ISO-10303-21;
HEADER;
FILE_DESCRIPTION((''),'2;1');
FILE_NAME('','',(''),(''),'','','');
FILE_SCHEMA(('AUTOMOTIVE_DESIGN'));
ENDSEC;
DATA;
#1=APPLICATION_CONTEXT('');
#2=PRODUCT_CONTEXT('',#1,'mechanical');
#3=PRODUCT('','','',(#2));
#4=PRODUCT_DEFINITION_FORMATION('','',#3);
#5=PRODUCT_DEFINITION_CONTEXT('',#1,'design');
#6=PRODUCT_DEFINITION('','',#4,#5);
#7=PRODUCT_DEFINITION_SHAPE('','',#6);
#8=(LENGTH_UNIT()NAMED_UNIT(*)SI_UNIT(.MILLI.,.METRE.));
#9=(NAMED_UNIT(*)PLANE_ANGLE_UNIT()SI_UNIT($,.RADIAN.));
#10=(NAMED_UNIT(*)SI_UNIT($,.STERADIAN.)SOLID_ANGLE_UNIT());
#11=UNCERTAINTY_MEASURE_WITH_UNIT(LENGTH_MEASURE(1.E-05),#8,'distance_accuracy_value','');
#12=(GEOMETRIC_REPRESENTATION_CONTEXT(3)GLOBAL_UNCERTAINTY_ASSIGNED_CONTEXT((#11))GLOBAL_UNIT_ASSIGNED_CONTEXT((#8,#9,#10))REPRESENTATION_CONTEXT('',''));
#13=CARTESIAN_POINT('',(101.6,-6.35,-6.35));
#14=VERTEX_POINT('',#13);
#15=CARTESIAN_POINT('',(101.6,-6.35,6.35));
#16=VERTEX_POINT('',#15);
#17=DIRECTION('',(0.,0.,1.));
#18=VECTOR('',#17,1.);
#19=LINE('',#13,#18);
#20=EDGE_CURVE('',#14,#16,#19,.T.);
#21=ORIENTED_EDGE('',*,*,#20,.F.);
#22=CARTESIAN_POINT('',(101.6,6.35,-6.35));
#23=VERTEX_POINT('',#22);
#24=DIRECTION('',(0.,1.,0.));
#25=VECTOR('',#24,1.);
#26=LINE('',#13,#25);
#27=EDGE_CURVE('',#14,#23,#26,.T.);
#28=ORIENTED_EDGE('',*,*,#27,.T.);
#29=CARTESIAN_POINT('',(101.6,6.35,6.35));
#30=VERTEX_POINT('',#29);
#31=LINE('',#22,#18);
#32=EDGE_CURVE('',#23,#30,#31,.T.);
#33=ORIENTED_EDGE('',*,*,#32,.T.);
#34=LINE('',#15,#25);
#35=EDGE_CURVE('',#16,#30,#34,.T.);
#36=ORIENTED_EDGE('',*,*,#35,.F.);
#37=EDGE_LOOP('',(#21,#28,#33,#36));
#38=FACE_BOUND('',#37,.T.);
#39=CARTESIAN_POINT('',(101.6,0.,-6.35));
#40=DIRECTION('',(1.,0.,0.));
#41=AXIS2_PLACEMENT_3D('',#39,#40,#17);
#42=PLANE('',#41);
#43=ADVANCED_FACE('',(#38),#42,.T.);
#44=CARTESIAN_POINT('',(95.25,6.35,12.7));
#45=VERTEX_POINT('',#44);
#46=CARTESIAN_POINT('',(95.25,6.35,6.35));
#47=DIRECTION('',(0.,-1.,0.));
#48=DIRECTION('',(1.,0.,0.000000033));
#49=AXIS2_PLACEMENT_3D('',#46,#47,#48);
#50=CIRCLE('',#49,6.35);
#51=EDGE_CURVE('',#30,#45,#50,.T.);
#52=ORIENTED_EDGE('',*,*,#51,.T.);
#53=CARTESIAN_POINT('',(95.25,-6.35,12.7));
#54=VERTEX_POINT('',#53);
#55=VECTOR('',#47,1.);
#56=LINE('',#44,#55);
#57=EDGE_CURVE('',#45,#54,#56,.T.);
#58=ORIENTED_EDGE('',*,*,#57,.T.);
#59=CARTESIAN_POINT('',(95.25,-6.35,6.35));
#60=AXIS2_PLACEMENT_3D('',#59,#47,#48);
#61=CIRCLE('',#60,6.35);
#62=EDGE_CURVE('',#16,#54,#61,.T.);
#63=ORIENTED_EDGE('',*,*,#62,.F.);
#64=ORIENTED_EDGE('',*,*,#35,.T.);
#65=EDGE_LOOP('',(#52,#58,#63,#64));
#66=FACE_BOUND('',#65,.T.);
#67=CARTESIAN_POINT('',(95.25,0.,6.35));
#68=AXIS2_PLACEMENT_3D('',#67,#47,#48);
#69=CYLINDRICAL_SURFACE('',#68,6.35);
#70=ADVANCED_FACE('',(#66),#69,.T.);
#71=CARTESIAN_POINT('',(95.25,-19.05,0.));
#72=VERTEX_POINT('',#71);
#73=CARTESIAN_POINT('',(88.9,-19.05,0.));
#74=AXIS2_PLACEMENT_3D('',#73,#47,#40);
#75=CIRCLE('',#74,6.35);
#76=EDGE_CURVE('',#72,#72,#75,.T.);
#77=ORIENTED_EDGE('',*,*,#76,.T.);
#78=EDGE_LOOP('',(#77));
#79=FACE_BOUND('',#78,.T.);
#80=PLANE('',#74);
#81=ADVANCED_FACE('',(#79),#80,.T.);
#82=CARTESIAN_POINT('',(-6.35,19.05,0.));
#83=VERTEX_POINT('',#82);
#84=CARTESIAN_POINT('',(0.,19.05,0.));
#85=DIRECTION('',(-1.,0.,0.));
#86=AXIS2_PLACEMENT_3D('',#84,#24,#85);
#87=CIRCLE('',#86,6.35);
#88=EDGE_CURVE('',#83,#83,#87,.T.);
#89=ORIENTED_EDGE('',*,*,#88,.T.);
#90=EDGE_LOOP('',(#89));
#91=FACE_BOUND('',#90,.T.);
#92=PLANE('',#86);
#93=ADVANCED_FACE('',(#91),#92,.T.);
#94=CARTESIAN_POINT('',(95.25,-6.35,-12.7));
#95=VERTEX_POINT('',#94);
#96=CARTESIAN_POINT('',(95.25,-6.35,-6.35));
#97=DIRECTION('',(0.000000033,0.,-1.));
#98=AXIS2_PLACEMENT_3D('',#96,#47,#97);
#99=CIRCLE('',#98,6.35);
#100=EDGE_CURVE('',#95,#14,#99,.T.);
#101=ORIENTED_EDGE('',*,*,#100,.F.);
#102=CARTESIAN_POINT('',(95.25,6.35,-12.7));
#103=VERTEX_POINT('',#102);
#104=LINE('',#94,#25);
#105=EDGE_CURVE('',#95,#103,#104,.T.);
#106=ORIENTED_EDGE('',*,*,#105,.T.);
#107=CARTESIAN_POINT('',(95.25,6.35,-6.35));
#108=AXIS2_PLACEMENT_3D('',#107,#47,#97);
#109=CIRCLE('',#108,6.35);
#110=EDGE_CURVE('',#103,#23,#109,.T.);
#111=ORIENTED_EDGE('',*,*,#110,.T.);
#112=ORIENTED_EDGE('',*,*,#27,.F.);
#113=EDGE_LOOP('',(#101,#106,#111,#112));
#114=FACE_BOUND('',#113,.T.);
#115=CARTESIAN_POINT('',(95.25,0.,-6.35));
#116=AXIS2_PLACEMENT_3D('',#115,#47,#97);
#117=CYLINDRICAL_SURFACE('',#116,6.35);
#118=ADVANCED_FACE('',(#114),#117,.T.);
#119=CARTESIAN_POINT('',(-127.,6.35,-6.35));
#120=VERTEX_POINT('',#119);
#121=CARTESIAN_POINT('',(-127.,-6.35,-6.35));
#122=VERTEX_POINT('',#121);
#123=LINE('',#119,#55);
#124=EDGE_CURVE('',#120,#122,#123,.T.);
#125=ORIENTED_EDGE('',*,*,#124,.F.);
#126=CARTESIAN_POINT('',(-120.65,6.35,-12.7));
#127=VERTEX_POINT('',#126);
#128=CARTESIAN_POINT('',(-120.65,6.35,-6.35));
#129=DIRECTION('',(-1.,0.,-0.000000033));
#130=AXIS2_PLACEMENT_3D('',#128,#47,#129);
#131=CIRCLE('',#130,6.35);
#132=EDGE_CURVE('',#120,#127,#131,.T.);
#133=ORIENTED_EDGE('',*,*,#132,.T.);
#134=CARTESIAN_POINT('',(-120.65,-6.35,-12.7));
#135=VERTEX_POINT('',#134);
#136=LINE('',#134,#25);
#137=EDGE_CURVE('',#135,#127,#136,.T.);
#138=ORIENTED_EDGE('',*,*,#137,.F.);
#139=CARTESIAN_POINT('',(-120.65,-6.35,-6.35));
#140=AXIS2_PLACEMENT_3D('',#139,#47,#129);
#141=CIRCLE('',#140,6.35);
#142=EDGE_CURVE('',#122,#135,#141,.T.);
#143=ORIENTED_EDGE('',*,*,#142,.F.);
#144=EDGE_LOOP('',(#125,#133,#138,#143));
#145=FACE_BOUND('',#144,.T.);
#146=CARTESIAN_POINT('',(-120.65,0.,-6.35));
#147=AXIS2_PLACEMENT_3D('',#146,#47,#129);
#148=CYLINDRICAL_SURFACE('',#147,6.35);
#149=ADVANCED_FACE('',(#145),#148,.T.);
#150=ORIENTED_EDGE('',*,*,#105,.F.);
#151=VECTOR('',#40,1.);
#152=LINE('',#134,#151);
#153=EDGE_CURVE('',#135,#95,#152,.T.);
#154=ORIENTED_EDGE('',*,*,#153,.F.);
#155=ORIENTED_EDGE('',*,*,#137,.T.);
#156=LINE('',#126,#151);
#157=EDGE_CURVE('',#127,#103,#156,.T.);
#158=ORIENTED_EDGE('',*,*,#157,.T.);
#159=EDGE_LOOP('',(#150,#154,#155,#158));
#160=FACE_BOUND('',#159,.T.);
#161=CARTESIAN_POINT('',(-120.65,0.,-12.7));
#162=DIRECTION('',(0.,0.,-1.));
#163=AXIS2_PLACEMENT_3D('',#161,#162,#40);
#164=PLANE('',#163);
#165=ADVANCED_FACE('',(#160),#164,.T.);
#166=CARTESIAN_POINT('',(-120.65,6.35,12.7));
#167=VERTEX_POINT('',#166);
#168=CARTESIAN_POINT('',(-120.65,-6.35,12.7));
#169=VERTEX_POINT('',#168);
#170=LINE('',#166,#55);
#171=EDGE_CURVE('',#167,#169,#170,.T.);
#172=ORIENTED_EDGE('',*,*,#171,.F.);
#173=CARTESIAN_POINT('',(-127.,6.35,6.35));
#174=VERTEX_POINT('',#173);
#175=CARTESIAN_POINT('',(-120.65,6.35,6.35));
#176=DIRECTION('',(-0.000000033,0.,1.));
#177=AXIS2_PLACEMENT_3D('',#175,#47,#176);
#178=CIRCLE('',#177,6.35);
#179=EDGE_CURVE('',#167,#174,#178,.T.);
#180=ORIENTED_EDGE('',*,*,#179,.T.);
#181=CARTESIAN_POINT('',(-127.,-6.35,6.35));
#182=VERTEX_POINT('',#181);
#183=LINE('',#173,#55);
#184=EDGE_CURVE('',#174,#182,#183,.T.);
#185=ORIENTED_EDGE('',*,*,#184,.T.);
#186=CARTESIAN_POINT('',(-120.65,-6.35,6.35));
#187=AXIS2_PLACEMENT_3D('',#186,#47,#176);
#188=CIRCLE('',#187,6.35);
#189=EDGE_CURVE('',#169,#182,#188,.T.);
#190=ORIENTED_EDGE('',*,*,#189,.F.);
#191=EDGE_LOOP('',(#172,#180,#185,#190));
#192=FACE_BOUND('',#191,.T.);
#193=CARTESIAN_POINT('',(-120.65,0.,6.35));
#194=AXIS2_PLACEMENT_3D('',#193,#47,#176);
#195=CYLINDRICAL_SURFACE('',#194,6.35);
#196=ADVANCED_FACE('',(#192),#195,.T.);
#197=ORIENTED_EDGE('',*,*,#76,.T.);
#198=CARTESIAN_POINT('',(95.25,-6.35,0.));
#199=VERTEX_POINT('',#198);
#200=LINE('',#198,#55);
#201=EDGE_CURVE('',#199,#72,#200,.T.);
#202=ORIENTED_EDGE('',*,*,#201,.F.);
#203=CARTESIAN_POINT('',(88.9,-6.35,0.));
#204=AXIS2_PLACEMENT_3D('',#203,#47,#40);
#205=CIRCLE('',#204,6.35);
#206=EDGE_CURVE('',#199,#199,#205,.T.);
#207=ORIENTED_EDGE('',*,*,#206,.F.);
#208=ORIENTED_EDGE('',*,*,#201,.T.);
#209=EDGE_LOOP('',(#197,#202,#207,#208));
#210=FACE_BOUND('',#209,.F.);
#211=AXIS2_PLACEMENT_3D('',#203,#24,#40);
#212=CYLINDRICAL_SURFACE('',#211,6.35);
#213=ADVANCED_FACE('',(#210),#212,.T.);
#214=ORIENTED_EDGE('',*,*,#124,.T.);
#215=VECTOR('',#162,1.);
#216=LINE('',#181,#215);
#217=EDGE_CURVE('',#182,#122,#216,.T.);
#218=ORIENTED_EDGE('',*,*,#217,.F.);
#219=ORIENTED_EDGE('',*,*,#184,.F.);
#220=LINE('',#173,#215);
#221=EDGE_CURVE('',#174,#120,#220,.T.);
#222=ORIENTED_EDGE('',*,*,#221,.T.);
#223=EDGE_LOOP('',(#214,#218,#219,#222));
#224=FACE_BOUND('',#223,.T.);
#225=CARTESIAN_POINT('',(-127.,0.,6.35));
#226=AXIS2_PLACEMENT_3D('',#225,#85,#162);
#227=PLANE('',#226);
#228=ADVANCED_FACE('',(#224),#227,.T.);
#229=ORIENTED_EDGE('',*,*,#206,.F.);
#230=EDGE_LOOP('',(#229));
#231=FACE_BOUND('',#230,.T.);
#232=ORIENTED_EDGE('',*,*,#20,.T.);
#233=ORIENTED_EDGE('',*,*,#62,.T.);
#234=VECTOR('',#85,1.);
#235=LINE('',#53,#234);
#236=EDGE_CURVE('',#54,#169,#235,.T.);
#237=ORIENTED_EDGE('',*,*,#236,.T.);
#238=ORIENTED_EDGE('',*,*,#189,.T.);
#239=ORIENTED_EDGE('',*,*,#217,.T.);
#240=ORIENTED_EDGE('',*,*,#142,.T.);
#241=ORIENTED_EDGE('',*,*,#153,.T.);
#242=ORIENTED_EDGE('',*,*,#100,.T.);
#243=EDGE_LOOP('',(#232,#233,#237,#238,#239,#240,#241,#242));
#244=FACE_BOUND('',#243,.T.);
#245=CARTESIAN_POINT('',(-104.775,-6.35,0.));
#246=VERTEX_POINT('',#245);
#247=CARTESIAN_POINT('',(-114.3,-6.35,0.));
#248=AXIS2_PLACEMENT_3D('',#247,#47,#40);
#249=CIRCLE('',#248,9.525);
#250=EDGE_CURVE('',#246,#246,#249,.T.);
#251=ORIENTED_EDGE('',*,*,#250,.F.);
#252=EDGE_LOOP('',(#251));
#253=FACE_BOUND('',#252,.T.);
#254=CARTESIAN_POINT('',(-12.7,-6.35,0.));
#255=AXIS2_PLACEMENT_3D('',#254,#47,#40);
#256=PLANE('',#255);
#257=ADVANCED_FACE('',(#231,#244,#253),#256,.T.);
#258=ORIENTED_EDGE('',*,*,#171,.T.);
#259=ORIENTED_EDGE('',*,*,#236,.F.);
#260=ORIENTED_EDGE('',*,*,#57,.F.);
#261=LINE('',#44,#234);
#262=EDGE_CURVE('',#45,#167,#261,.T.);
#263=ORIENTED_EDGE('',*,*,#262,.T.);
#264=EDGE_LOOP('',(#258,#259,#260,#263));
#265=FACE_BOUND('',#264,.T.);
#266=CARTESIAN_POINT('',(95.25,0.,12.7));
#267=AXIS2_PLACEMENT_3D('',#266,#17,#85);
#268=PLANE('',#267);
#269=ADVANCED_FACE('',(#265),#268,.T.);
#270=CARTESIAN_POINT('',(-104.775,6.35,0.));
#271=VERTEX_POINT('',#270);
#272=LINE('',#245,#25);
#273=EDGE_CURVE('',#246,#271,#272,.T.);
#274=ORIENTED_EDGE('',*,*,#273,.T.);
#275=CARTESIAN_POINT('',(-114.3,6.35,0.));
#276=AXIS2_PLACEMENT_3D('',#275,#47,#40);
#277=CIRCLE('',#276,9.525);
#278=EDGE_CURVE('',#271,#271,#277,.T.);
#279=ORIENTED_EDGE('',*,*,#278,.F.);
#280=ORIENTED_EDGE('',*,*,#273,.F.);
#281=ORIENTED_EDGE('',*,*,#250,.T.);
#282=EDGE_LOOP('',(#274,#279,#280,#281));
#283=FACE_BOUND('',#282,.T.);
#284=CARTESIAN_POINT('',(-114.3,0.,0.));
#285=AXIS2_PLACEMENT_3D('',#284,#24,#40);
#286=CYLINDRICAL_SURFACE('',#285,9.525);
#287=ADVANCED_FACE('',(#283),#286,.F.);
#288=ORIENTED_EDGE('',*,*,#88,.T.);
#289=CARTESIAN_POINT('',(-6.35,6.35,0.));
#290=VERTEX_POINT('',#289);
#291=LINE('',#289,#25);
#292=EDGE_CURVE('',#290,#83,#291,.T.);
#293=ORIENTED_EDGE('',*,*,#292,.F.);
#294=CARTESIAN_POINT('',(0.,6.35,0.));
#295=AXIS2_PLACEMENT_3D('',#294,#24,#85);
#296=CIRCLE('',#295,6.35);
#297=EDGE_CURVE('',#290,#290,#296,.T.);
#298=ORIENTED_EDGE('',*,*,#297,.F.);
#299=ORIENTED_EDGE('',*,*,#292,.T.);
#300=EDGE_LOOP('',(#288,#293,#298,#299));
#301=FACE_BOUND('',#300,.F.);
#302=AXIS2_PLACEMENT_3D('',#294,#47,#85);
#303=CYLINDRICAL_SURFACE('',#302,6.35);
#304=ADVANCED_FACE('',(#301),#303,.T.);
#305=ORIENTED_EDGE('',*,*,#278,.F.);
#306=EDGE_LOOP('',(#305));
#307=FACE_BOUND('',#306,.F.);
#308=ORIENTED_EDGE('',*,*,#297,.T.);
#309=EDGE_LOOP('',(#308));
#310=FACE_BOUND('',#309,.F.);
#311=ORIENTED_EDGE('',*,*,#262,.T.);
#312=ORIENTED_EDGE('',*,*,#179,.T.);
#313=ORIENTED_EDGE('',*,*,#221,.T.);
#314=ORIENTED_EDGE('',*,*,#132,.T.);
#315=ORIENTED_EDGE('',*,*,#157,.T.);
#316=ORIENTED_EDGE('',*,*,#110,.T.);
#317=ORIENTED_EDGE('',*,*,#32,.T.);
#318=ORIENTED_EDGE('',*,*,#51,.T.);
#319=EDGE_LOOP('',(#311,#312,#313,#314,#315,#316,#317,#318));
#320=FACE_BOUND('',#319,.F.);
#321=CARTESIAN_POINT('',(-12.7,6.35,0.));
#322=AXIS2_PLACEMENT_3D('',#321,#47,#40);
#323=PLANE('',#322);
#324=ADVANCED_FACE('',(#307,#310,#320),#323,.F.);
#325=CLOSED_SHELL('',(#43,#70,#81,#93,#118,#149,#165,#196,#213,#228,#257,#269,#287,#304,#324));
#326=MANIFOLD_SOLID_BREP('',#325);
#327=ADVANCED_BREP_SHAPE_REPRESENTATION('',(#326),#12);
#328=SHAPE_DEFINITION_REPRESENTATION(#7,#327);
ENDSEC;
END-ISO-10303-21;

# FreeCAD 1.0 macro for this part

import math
import FreeCAD as App
import Part
import Sketcher
Q = App.Units.Quantity

doc = App.newDocument("Part")
params = doc.addObject("Spreadsheet::Sheet", "Params")
for row, (alias, value) in enumerate([
    ("sketch1_diameter", "0.75 in"),
    ("sketch1_radius", "0.25 in"),
    ("sketch1_width", "8.5 in"),
    ("sketch1_height", "0.5 in"),
    ("pad1_length", "0.5 in"),
    ("sketch2_diameter", "0.5 in"),
    ("pad2_length", "0.5 in"),
    ("sketch3_diameter", "0.5 in"),
    ("pad3_length", "0.5 in"),
], start=1):
    params.set(f"A{row}", alias)
    params.set(f"B{row}", "=" + value)
    params.setAlias(f"B{row}", alias)

body = doc.addObject("PartDesign::Body", "Body")

# Sketch on XZ plane
sketch1 = body.newObject("Sketcher::SketchObject", "Sketch")
sketch1.AttachmentSupport = (doc.getObject("XZ_Plane"), [""])
sketch1.MapMode = "FlatFace"
sketch1.addGeometry([
    Part.ArcOfCircle(Part.Circle(App.Vector(95, 6, 0), App.Vector(0, 0, 1), 6), math.radians(0), math.radians(90)),  # 0
    Part.LineSegment(App.Vector(95, 13, 0), App.Vector(-121, 13, 0)),  # 1
    Part.ArcOfCircle(Part.Circle(App.Vector(-121, 6, 0), App.Vector(0, 0, 1), 6), math.radians(90), math.radians(180)),  # 2
    Part.LineSegment(App.Vector(-127, 6, 0), App.Vector(-127, -6, 0)),  # 3
    Part.ArcOfCircle(Part.Circle(App.Vector(-121, -6, 0), App.Vector(0, 0, 1), 6), math.radians(-180), math.radians(-90)),  # 4
    Part.LineSegment(App.Vector(-121, -13, 0), App.Vector(95, -13, 0)),  # 5
    Part.ArcOfCircle(Part.Circle(App.Vector(95, -6, 0), App.Vector(0, 0, 1), 6), math.radians(-90), math.radians(0)),  # 6
    Part.LineSegment(App.Vector(102, -6, 0), App.Vector(102, 6, 0)),  # 7
    Part.Circle(App.Vector(-114, 0, 0), App.Vector(0, 0, 1), 10),  # 8
], False)
sketch1.addConstraint([
    Sketcher.Constraint("Tangent", 0, 2, 1, 1),
    Sketcher.Constraint("Tangent", 1, 2, 2, 1),
    Sketcher.Constraint("Tangent", 2, 2, 3, 1),
    Sketcher.Constraint("Tangent", 3, 2, 4, 1),
    Sketcher.Constraint("Tangent", 4, 2, 5, 1),
    Sketcher.Constraint("Tangent", 5, 2, 6, 1),
    Sketcher.Constraint("Tangent", 6, 2, 7, 1),
    Sketcher.Constraint("Tangent", 7, 2, 0, 1),
    Sketcher.Constraint("Horizontal", 1),
    Sketcher.Constraint("Vertical", 3),
    Sketcher.Constraint("Horizontal", 5),
    Sketcher.Constraint("Vertical", 7),
    Sketcher.Constraint("Equal", 0, 2),
    Sketcher.Constraint("Equal", 2, 4),
    Sketcher.Constraint("Equal", 4, 6),
    Sketcher.Constraint("PointOnObject", 8, 3, -1),
    Sketcher.Constraint("Diameter", 8, Q("0.75 in")),
    Sketcher.Constraint("Radius", 0, Q("0.25 in")),
    Sketcher.Constraint("DistanceX", 1, 2, 1, 1, Q("8.5 in")),
    Sketcher.Constraint("DistanceY", 3, 2, 3, 1, Q("0.5 in")),
    Sketcher.Constraint("DistanceX", 2, 2, -1, 1, Q("5 in")),
    Sketcher.Constraint("DistanceX", 8, 3, -1, 1, Q("4.5 in")),
    Sketcher.Constraint("DistanceY", -1, 1, 0, 2, Q("0.5 in")),
])
sketch1.setExpression("Constraints[16]", "Params.sketch1_diameter")
sketch1.setExpression("Constraints[17]", "Params.sketch1_radius")
sketch1.setExpression("Constraints[18]", "Params.sketch1_width")
sketch1.setExpression("Constraints[19]", "Params.sketch1_height")
pad1 = body.newObject("PartDesign::Pad", "Pad")
pad1.Profile = sketch1
pad1.setExpression("Length", "Params.pad1_length")
pad1.Midplane = True

# Sketch on XZ plane
sketch2 = body.newObject("Sketcher::SketchObject", "Sketch001")
sketch2.AttachmentSupport = (doc.getObject("XZ_Plane"), [""])
sketch2.MapMode = "FlatFace"
sketch2.AttachmentOffset = App.Placement(App.Vector(0, 0, 0.25 * 25.4), App.Rotation())
sketch2.addGeometry(Part.Circle(App.Vector(89, 0, 0), App.Vector(0, 0, 1), 6), False)
sketch2.addConstraint([
    Sketcher.Constraint("PointOnObject", 0, 3, -1),
    Sketcher.Constraint("Diameter", 0, Q("0.5 in")),
    Sketcher.Constraint("DistanceX", -1, 1, 0, 3, Q("3.5 in")),
])
sketch2.setExpression("Constraints[1]", "Params.sketch2_diameter")
pad2 = body.newObject("PartDesign::Pad", "Pad001")
pad2.Profile = sketch2
pad2.setExpression("Length", "Params.pad2_length")

# Sketch on XZ plane
sketch3 = body.newObject("Sketcher::SketchObject", "Sketch002")
sketch3.AttachmentSupport = (doc.getObject("XZ_Plane"), [""])
sketch3.MapMode = "FlatFace"
sketch3.AttachmentOffset = App.Placement(App.Vector(0, 0, -0.25 * 25.4), App.Rotation())
sketch3.addGeometry(Part.Circle(App.Vector(0, 0, 0), App.Vector(0, 0, 1), 6), False)
sketch3.addConstraint([
    Sketcher.Constraint("Coincident", 0, 3, -1, 1),
    Sketcher.Constraint("Diameter", 0, Q("0.5 in")),
])
sketch3.setExpression("Constraints[1]", "Params.sketch3_diameter")
pad3 = body.newObject("PartDesign::Pad", "Pad002")
pad3.Profile = sketch3
pad3.setExpression("Length", "Params.pad3_length")
pad3.Reversed = True

doc.recompute()
